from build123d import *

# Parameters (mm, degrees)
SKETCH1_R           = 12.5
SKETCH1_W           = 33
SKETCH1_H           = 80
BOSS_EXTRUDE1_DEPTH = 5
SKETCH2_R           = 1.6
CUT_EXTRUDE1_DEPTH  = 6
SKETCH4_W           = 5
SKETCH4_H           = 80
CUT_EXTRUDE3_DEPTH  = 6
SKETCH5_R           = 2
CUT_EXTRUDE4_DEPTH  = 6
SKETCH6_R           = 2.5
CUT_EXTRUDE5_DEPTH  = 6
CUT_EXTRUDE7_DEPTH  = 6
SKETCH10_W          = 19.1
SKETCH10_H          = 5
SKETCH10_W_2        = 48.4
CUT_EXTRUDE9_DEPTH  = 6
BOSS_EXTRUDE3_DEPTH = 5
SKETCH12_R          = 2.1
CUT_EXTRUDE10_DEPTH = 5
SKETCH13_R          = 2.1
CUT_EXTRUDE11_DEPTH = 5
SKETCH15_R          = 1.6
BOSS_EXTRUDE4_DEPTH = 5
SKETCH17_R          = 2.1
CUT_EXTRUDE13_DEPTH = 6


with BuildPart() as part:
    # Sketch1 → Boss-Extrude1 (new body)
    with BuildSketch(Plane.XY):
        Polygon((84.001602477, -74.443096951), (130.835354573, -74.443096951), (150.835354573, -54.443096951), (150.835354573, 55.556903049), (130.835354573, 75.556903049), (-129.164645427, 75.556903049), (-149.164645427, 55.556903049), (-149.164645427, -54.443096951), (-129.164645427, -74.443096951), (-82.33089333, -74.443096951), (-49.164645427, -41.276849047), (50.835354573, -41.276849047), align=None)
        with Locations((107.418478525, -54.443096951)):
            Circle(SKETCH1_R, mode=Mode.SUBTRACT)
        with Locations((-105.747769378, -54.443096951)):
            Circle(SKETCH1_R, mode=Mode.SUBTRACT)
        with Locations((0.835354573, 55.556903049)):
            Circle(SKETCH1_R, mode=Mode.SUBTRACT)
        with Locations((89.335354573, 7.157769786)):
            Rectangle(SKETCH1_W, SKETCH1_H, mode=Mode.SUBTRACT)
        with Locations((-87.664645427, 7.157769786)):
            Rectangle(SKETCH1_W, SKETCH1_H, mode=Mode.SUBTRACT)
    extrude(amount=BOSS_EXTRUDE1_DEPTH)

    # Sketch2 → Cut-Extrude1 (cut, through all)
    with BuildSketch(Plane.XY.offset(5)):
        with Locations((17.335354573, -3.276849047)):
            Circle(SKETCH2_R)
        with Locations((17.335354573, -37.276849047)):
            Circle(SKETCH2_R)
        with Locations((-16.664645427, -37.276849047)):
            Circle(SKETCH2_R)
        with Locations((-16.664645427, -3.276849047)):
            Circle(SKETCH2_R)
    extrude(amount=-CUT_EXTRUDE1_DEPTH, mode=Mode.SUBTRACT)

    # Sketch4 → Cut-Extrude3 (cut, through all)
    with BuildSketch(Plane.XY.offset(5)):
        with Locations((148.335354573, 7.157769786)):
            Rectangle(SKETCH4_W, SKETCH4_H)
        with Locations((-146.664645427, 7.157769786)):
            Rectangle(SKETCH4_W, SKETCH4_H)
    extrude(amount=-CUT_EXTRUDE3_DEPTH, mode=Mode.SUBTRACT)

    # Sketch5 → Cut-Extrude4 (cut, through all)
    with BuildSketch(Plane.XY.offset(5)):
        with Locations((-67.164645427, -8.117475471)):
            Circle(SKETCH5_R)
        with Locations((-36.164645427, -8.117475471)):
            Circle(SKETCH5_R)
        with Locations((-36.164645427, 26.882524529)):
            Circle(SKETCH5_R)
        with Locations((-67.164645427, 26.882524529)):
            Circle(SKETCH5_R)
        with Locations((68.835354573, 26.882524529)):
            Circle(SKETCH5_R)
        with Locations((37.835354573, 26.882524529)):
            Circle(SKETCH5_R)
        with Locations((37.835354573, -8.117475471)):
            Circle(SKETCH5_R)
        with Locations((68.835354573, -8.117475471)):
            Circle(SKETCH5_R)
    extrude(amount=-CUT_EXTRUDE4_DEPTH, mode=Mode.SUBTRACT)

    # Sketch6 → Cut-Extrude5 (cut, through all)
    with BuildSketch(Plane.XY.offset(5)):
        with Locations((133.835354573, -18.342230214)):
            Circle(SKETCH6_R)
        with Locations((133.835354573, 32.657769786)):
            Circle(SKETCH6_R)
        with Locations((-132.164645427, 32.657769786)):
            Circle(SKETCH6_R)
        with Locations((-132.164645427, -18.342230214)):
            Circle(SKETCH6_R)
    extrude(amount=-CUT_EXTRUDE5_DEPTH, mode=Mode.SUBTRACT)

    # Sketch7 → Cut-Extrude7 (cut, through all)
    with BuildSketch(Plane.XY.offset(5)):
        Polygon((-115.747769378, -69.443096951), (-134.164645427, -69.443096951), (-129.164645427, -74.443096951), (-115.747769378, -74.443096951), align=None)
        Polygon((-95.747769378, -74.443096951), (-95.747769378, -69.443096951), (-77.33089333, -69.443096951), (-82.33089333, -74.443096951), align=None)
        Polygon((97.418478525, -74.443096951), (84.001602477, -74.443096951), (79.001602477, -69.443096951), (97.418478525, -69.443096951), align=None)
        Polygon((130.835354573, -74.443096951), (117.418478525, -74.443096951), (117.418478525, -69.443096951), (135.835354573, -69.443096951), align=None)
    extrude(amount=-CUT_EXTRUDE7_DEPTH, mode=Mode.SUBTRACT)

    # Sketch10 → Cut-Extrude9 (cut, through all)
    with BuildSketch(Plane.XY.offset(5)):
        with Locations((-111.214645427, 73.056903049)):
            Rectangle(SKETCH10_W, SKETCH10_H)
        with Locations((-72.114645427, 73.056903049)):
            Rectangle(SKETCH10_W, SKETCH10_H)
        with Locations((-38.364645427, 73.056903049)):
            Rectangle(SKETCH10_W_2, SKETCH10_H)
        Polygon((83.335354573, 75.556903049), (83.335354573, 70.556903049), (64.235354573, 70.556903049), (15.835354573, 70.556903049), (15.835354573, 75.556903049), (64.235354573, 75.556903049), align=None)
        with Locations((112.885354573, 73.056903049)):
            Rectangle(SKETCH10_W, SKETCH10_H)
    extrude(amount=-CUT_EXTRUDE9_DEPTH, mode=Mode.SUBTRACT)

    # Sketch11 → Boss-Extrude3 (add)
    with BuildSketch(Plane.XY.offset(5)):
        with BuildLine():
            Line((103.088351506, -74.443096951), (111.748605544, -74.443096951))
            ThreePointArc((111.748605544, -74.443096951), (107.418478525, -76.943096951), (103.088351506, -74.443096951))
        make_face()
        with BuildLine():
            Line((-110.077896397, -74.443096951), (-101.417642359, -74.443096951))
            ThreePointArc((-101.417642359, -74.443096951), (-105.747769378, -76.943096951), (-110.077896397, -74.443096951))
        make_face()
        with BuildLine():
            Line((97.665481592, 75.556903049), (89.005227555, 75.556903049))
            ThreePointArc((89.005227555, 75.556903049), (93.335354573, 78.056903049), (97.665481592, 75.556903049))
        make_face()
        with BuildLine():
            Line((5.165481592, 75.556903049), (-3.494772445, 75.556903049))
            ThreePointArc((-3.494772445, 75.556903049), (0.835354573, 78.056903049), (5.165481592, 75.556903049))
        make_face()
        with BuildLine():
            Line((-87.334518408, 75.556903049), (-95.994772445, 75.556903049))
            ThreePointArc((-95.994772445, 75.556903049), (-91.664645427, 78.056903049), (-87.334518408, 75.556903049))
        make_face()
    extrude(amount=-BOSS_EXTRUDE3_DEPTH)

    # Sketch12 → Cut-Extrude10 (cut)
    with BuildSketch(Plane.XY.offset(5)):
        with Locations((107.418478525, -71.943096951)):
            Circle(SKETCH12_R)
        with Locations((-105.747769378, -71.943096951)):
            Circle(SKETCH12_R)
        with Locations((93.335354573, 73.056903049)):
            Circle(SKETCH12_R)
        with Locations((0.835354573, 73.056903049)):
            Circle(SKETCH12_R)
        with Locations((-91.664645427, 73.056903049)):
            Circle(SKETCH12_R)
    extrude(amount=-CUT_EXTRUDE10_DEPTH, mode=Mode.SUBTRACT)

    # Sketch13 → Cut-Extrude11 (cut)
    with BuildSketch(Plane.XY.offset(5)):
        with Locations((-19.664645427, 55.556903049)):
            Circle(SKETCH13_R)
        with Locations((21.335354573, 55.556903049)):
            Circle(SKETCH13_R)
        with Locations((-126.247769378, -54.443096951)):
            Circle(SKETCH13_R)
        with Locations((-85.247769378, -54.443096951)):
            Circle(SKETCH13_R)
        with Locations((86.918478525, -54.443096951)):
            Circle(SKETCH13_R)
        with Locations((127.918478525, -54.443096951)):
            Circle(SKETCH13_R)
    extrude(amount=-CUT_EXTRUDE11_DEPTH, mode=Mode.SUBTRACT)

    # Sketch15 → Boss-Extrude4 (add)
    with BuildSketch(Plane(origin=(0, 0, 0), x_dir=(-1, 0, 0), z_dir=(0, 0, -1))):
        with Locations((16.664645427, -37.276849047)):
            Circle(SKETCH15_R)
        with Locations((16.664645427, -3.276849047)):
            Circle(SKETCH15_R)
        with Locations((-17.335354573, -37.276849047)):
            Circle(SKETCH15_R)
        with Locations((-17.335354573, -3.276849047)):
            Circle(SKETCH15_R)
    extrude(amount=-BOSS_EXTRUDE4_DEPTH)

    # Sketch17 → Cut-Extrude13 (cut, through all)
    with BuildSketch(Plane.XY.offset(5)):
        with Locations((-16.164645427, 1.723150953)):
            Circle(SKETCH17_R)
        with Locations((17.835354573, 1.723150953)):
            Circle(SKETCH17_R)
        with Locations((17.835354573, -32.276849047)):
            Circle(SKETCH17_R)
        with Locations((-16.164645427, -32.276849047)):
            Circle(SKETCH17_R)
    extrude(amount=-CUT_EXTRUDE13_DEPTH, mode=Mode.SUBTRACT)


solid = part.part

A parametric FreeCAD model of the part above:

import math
import FreeCAD as App
import Part
import Sketcher
from FreeCAD import Vector
Q = App.Units.Quantity


def add_polygon(sketch, points):
    """Adds a closed chain of lines whose ends are joined by coincident constraints."""
    first, n = sketch.GeometryCount, len(points)
    for a, b in zip(points, points[1:] + points[:1]):
        sketch.addGeometry(Part.LineSegment(App.Vector(*a, 0), App.Vector(*b, 0)), False)
    for i in range(n):
        sketch.addConstraint(Sketcher.Constraint("Coincident", first + i, 2, first + (i + 1) % n, 1))

doc = App.newDocument("Part")
params = doc.addObject("Spreadsheet::Sheet", "Params")
for row, (alias, value) in enumerate([
    ("sketch1_diameter", "25 mm"),
    ("sketch1_width", "260 mm"),
    ("sketch1_width2", "100 mm"),
    ("sketch1_width3", "33 mm"),
    ("sketch1_height", "110 mm"),
    ("pad1_length", "5 mm"),
    ("sketch2_diameter", "3.2 mm"),
    ("sketch3_width", "5 mm"),
    ("sketch3_height", "80 mm"),
    ("sketch4_diameter", "4 mm"),
    ("sketch5_diameter", "5 mm"),
    ("sketch6_height", "5 mm"),
    ("sketch7_height", "5 mm"),
    ("sketch7_width", "19.1 mm"),
    ("sketch7_width2", "67.5 mm"),
    ("sketch8_radius", "5 mm"),
    ("pad2_length", "5 mm"),
    ("sketch9_diameter", "4.2 mm"),
    ("pocket7_length", "5 mm"),
    ("sketch10_diameter", "4.2 mm"),
    ("pocket8_length", "5 mm"),
    ("sketch11_diameter", "3.2 mm"),
    ("pad3_length", "5 mm"),
    ("sketch12_diameter", "4.2 mm"),
], start=1):
    params.set(f"A{row}", alias)
    params.set(f"B{row}", "=" + value)
    params.setAlias(f"B{row}", alias)

body = doc.addObject("PartDesign::Body", "Body")

sketch1 = body.newObject("Sketcher::SketchObject", "Sketch")
sketch1.AttachmentSupport = (doc.getObject("XY_Plane"), [""])
sketch1.MapMode = "FlatFace"
add_polygon(sketch1, [(84.001602, -74.443097), (130.835355, -74.443097), (150.835355, -54.443097), (150.835355, 55.556903), (130.835355, 75.556903), (-129.164645, 75.556903), (-149.164645, 55.556903), (-149.164645, -54.443097), (-129.164645, -74.443097), (-82.330893, -74.443097), (-49.164645, -41.276849), (50.835355, -41.276849)])
sketch1.addGeometry(Part.Circle(Vector(-105.747769, -54.443097, 0), Vector(0, 0, 1), 12.5), False)
sketch1.addGeometry(Part.Circle(Vector(107.418479, -54.443097, 0), Vector(0, 0, 1), 12.5), False)
add_polygon(sketch1, [(-71.164645, -32.84223), (-104.164645, -32.84223), (-104.164645, 47.15777), (-71.164645, 47.15777)])
sketch1.addGeometry(Part.Circle(Vector(0.835355, 55.556903, 0), Vector(0, 0, 1), 12.5), False)
add_polygon(sketch1, [(105.835355, -32.84223), (72.835355, -32.84223), (72.835355, 47.15777), (105.835355, 47.15777)])
sketch1.addConstraint(Sketcher.Constraint("Horizontal", 0))
sketch1.addConstraint(Sketcher.Constraint("Vertical", 2))
sketch1.addConstraint(Sketcher.Constraint("Horizontal", 4))
sketch1.addConstraint(Sketcher.Constraint("Vertical", 6))
sketch1.addConstraint(Sketcher.Constraint("Horizontal", 8))
sketch1.addConstraint(Sketcher.Constraint("Horizontal", 10))
sketch1.addConstraint(Sketcher.Constraint("Horizontal", 14))
sketch1.addConstraint(Sketcher.Constraint("Vertical", 15))
sketch1.addConstraint(Sketcher.Constraint("Horizontal", 16))
sketch1.addConstraint(Sketcher.Constraint("Vertical", 17))
sketch1.addConstraint(Sketcher.Constraint("Horizontal", 19))
sketch1.addConstraint(Sketcher.Constraint("Vertical", 20))
sketch1.addConstraint(Sketcher.Constraint("Horizontal", 21))
sketch1.addConstraint(Sketcher.Constraint("Vertical", 22))
sketch1.addConstraint(Sketcher.Constraint("Equal", 12, 13))
sketch1.addConstraint(Sketcher.Constraint("Equal", 13, 18))
sketch1.addConstraint(Sketcher.Constraint("Perpendicular", 1, 3))
sketch1.addConstraint(Sketcher.Constraint("Perpendicular", 3, 5))
sketch1.addConstraint(Sketcher.Constraint("Perpendicular", 5, 7))
sketch1.addConstraint(Sketcher.Constraint("Perpendicular", 7, 9))
sketch1.addConstraint(Sketcher.Constraint("Perpendicular", 9, 11))
sketch1.addConstraint(Sketcher.Constraint("Horizontal", 12, 3, 13, 3))
sketch1.addConstraint(Sketcher.Constraint("Horizontal", 13, 3, 1, 2))
sketch1.addConstraint(Sketcher.Constraint("Horizontal", 18, 3, 2, 2))
sketch1.addConstraint(Sketcher.Constraint("Horizontal", 2, 2, 5, 2))
sketch1.addConstraint(Sketcher.Constraint("Horizontal", 1, 2, 6, 2))
sketch1.addConstraint(Sketcher.Constraint("Horizontal", 0, 2, 7, 2))
sketch1.addConstraint(Sketcher.Constraint("Horizontal", 17, 2, 19, 2))
sketch1.addConstraint(Sketcher.Constraint("Horizontal", 16, 2, 20, 2))
sketch1.addConstraint(Sketcher.Constraint("Vertical", 0, 2, 3, 2))
sketch1.addConstraint(Sketcher.Constraint("Vertical", 4, 2, 7, 2))
sketch1.addConstraint(Sketcher.Constraint("Equal", 0, 8))
sketch1.addConstraint(Sketcher.Constraint("Equal", 16, 19))
sketch1.addConstraint(Sketcher.Constraint("Diameter", 12, Q("25 mm")))
sketch1.addConstraint(Sketcher.Constraint("DistanceX", 4, 2, 4, 1, Q("260 mm")))
sketch1.addConstraint(Sketcher.Constraint("DistanceX", 10, 1, 10, 2, Q("100 mm")))
sketch1.addConstraint(Sketcher.Constraint("DistanceX", 14, 2, 14, 1, Q("33 mm")))
sketch1.addConstraint(Sketcher.Constraint("DistanceY", 2, 1, 2, 2, Q("110 mm")))
sketch1.addConstraint(Sketcher.Constraint("DistanceY", 15, 1, 15, 2, Q("80 mm")))
sketch1.addConstraint(Sketcher.Constraint("DistanceY", 0, 2, 13, 3, Q("20 mm")))
sketch1.addConstraint(Sketcher.Constraint("DistanceX", 18, 3, 0, 2, Q("130 mm")))
sketch1.addConstraint(Sketcher.Constraint("DistanceX", 7, 2, 14, 2, Q("25 mm")))
sketch1.addConstraint(Sketcher.Constraint("DistanceX", 10, 2, 19, 2, Q("22 mm")))
sketch1.addConstraint(Sketcher.Constraint("DistanceX", 0, 1, 0, 2, Q("46.833752 mm")))
sketch1.addConstraint(Sketcher.Constraint("DistanceX", 12, 3, -1, 1, Q("105.747769 mm")))
sketch1.addConstraint(Sketcher.Constraint("DistanceX", -1, 1, 13, 3, Q("107.418479 mm")))
sketch1.addConstraint(Sketcher.Constraint("DistanceY", 9, 2, -1, 1, Q("41.276849 mm")))
sketch1.addConstraint(Sketcher.Constraint("DistanceY", 14, 2, -1, 1, Q("32.84223 mm")))
sketch1.addConstraint(Sketcher.Constraint("DistanceX", -1, 1, 18, 3, Q("0.835355 mm")))
sketch1.setExpression("Constraints[53]", "Params.sketch1_diameter")
sketch1.setExpression("Constraints[54]", "Params.sketch1_width")
sketch1.setExpression("Constraints[55]", "Params.sketch1_width2")
sketch1.setExpression("Constraints[56]", "Params.sketch1_width3")
sketch1.setExpression("Constraints[57]", "Params.sketch1_height")
pad1 = body.newObject("PartDesign::Pad", "Pad")
pad1.Profile = sketch1
pad1.setExpression("Length", "Params.pad1_length")

sketch2 = body.newObject("Sketcher::SketchObject", "Sketch001")
sketch2.AttachmentSupport = (doc.getObject("XY_Plane"), [""])
sketch2.MapMode = "FlatFace"
sketch2.AttachmentOffset = App.Placement(Vector(0, 0, 5), App.Rotation())
sketch2.addGeometry(Part.Circle(Vector(17.335355, -3.276849, 0), Vector(0, 0, 1), 1.6), False)
sketch2.addGeometry(Part.Circle(Vector(17.335355, -37.276849, 0), Vector(0, 0, 1), 1.6), False)
sketch2.addGeometry(Part.Circle(Vector(-16.664645, -37.276849, 0), Vector(0, 0, 1), 1.6), False)
sketch2.addGeometry(Part.Circle(Vector(-16.664645, -3.276849, 0), Vector(0, 0, 1), 1.6), False)
sketch2.addConstraint(Sketcher.Constraint("Equal", 0, 1))
sketch2.addConstraint(Sketcher.Constraint("Equal", 1, 2))
sketch2.addConstraint(Sketcher.Constraint("Equal", 2, 3))
sketch2.addConstraint(Sketcher.Constraint("Horizontal", 1, 3, 2, 3))
sketch2.addConstraint(Sketcher.Constraint("Horizontal", 0, 3, 3, 3))
sketch2.addConstraint(Sketcher.Constraint("Vertical", 0, 3, 1, 3))
sketch2.addConstraint(Sketcher.Constraint("Vertical", 2, 3, 3, 3))
sketch2.addConstraint(Sketcher.Constraint("Diameter", 0, Q("3.2 mm")))
sketch2.addConstraint(Sketcher.Constraint("DistanceY", 1, 3, 0, 3, Q("34 mm")))
sketch2.addConstraint(Sketcher.Constraint("DistanceX", 2, 3, 1, 3, Q("34 mm")))
sketch2.addConstraint(Sketcher.Constraint("DistanceY", 0, 3, -1, 1, Q("3.276849 mm")))
sketch2.addConstraint(Sketcher.Constraint("DistanceX", -1, 1, 0, 3, Q("17.335355 mm")))
sketch2.setExpression("Constraints[7]", "Params.sketch2_diameter")
pocket1 = body.newObject("PartDesign::Pocket", "Pocket")
pocket1.Profile = sketch2
pocket1.Type = "ThroughAll"

sketch3 = body.newObject("Sketcher::SketchObject", "Sketch002")
sketch3.AttachmentSupport = (doc.getObject("XY_Plane"), [""])
sketch3.MapMode = "FlatFace"
sketch3.AttachmentOffset = App.Placement(Vector(0, 0, 5), App.Rotation())
add_polygon(sketch3, [(145.835355, 47.15777), (145.835355, -32.84223), (150.835355, -32.84223), (150.835355, 47.15777)])
add_polygon(sketch3, [(-149.164645, 47.15777), (-149.164645, -32.84223), (-144.164645, -32.84223), (-144.164645, 47.15777)])
sketch3.addConstraint(Sketcher.Constraint("Vertical", 0))
sketch3.addConstraint(Sketcher.Constraint("Horizontal", 1))
sketch3.addConstraint(Sketcher.Constraint("Vertical", 2))
sketch3.addConstraint(Sketcher.Constraint("Horizontal", 3))
sketch3.addConstraint(Sketcher.Constraint("Vertical", 4))
sketch3.addConstraint(Sketcher.Constraint("Horizontal", 5))
sketch3.addConstraint(Sketcher.Constraint("Vertical", 6))
sketch3.addConstraint(Sketcher.Constraint("Horizontal", 7))
sketch3.addConstraint(Sketcher.Constraint("Horizontal", 1, 2, 4, 2))
sketch3.addConstraint(Sketcher.Constraint("Horizontal", 3, 2, 6, 2))
sketch3.addConstraint(Sketcher.Constraint("Equal", 3, 5))
sketch3.addConstraint(Sketcher.Constraint("DistanceX", 1, 1, 1, 2, Q("5 mm")))
sketch3.addConstraint(Sketcher.Constraint("DistanceY", 0, 2, 0, 1, Q("80 mm")))
sketch3.addConstraint(Sketcher.Constraint("DistanceX", 4, 2, 0, 2, Q("295 mm")))
sketch3.addConstraint(Sketcher.Constraint("DistanceY", 0, 2, -1, 1, Q("32.84223 mm")))
sketch3.addConstraint(Sketcher.Constraint("DistanceX", -1, 1, 0, 2, Q("145.835355 mm")))
sketch3.setExpression("Constraints[19]", "Params.sketch3_width")
sketch3.setExpression("Constraints[20]", "Params.sketch3_height")
pocket2 = body.newObject("PartDesign::Pocket", "Pocket001")
pocket2.Profile = sketch3
pocket2.Type = "ThroughAll"

sketch4 = body.newObject("Sketcher::SketchObject", "Sketch003")
sketch4.AttachmentSupport = (doc.getObject("XY_Plane"), [""])
sketch4.MapMode = "FlatFace"
sketch4.AttachmentOffset = App.Placement(Vector(0, 0, 5), App.Rotation())
sketch4.addGeometry(Part.Circle(Vector(-67.164645, -8.117475, 0), Vector(0, 0, 1), 2), False)
sketch4.addGeometry(Part.Circle(Vector(-36.164645, -8.117475, 0), Vector(0, 0, 1), 2), False)
sketch4.addGeometry(Part.Circle(Vector(-36.164645, 26.882525, 0), Vector(0, 0, 1), 2), False)
sketch4.addGeometry(Part.Circle(Vector(-67.164645, 26.882525, 0), Vector(0, 0, 1), 2), False)
sketch4.addGeometry(Part.Circle(Vector(68.835355, 26.882525, 0), Vector(0, 0, 1), 2), False)
sketch4.addGeometry(Part.Circle(Vector(37.835355, 26.882525, 0), Vector(0, 0, 1), 2), False)
sketch4.addGeometry(Part.Circle(Vector(37.835355, -8.117475, 0), Vector(0, 0, 1), 2), False)
sketch4.addGeometry(Part.Circle(Vector(68.835355, -8.117475, 0), Vector(0, 0, 1), 2), False)
sketch4.addConstraint(Sketcher.Constraint("Equal", 0, 1))
sketch4.addConstraint(Sketcher.Constraint("Equal", 1, 2))
sketch4.addConstraint(Sketcher.Constraint("Equal", 2, 3))
sketch4.addConstraint(Sketcher.Constraint("Equal", 3, 4))
sketch4.addConstraint(Sketcher.Constraint("Equal", 4, 5))
sketch4.addConstraint(Sketcher.Constraint("Equal", 5, 6))
sketch4.addConstraint(Sketcher.Constraint("Equal", 6, 7))
sketch4.addConstraint(Sketcher.Constraint("Horizontal", 0, 3, 1, 3))
sketch4.addConstraint(Sketcher.Constraint("Horizontal", 2, 3, 3, 3))
sketch4.addConstraint(Sketcher.Constraint("Horizontal", 3, 3, 4, 3))
sketch4.addConstraint(Sketcher.Constraint("Horizontal", 4, 3, 5, 3))
sketch4.addConstraint(Sketcher.Constraint("Horizontal", 1, 3, 6, 3))
sketch4.addConstraint(Sketcher.Constraint("Horizontal", 6, 3, 7, 3))
sketch4.addConstraint(Sketcher.Constraint("Vertical", 1, 3, 2, 3))
sketch4.addConstraint(Sketcher.Constraint("Vertical", 0, 3, 3, 3))
sketch4.addConstraint(Sketcher.Constraint("Vertical", 5, 3, 6, 3))
sketch4.addConstraint(Sketcher.Constraint("Vertical", 4, 3, 7, 3))
sketch4.addConstraint(Sketcher.Constraint("Diameter", 0, Q("4 mm")))
sketch4.addConstraint(Sketcher.Constraint("DistanceX", 0, 3, 1, 3, Q("31 mm")))
sketch4.addConstraint(Sketcher.Constraint("DistanceY", 1, 3, 2, 3, Q("35 mm")))
sketch4.addConstraint(Sketcher.Constraint("DistanceX", 2, 3, 4, 3, Q("105 mm")))
sketch4.addConstraint(Sketcher.Constraint("DistanceX", 5, 3, 4, 3, Q("31 mm")))
sketch4.addConstraint(Sketcher.Constraint("DistanceX", 0, 3, -1, 1, Q("67.164645 mm")))
sketch4.addConstraint(Sketcher.Constraint("DistanceY", 0, 3, -1, 1, Q("8.117475 mm")))
sketch4.setExpression("Constraints[17]", "Params.sketch4_diameter")
pocket3 = body.newObject("PartDesign::Pocket", "Pocket002")
pocket3.Profile = sketch4
pocket3.Type = "ThroughAll"

sketch5 = body.newObject("Sketcher::SketchObject", "Sketch004")
sketch5.AttachmentSupport = (doc.getObject("XY_Plane"), [""])
sketch5.MapMode = "FlatFace"
sketch5.AttachmentOffset = App.Placement(Vector(0, 0, 5), App.Rotation())
sketch5.addGeometry(Part.Circle(Vector(133.835355, -18.34223, 0), Vector(0, 0, 1), 2.5), False)
sketch5.addGeometry(Part.Circle(Vector(133.835355, 32.65777, 0), Vector(0, 0, 1), 2.5), False)
sketch5.addGeometry(Part.Circle(Vector(-132.164645, 32.65777, 0), Vector(0, 0, 1), 2.5), False)
sketch5.addGeometry(Part.Circle(Vector(-132.164645, -18.34223, 0), Vector(0, 0, 1), 2.5), False)
sketch5.addConstraint(Sketcher.Constraint("Equal", 0, 1))
sketch5.addConstraint(Sketcher.Constraint("Equal", 1, 2))
sketch5.addConstraint(Sketcher.Constraint("Equal", 2, 3))
sketch5.addConstraint(Sketcher.Constraint("Horizontal", 1, 3, 2, 3))
sketch5.addConstraint(Sketcher.Constraint("Horizontal", 0, 3, 3, 3))
sketch5.addConstraint(Sketcher.Constraint("Vertical", 0, 3, 1, 3))
sketch5.addConstraint(Sketcher.Constraint("Vertical", 2, 3, 3, 3))
sketch5.addConstraint(Sketcher.Constraint("Diameter", 0, Q("5 mm")))
sketch5.addConstraint(Sketcher.Constraint("DistanceY", 0, 3, 1, 3, Q("51 mm")))
sketch5.addConstraint(Sketcher.Constraint("DistanceX", 2, 3, 1, 3, Q("266 mm")))
sketch5.addConstraint(Sketcher.Constraint("DistanceY", 0, 3, -1, 1, Q("18.34223 mm")))
sketch5.addConstraint(Sketcher.Constraint("DistanceX", -1, 1, 0, 3, Q("133.835355 mm")))
sketch5.setExpression("Constraints[7]", "Params.sketch5_diameter")
pocket4 = body.newObject("PartDesign::Pocket", "Pocket003")
pocket4.Profile = sketch5
pocket4.Type = "ThroughAll"

sketch6 = body.newObject("Sketcher::SketchObject", "Sketch005")
sketch6.AttachmentSupport = (doc.getObject("XY_Plane"), [""])
sketch6.MapMode = "FlatFace"
sketch6.AttachmentOffset = App.Placement(Vector(0, 0, 5), App.Rotation())
add_polygon(sketch6, [(-115.747769, -69.443097), (-134.164645, -69.443097), (-129.164645, -74.443097), (-115.747769, -74.443097)])
add_polygon(sketch6, [(-95.747769, -69.443097), (-95.747769, -74.443097), (-82.330893, -74.443097), (-77.330893, -69.443097)])
add_polygon(sketch6, [(84.001602, -74.443097), (97.418479, -74.443097), (97.418479, -69.443097), (79.001602, -69.443097)])
add_polygon(sketch6, [(117.418479, -74.443097), (130.835355, -74.443097), (135.835355, -69.443097), (117.418479, -69.443097)])
sketch6.addConstraint(Sketcher.Constraint("Horizontal", 0))
sketch6.addConstraint(Sketcher.Constraint("Horizontal", 2))
sketch6.addConstraint(Sketcher.Constraint("Vertical", 3))
sketch6.addConstraint(Sketcher.Constraint("Vertical", 4))
sketch6.addConstraint(Sketcher.Constraint("Horizontal", 5))
sketch6.addConstraint(Sketcher.Constraint("Horizontal", 7))
sketch6.addConstraint(Sketcher.Constraint("Horizontal", 8))
sketch6.addConstraint(Sketcher.Constraint("Vertical", 9))
sketch6.addConstraint(Sketcher.Constraint("Horizontal", 10))
sketch6.addConstraint(Sketcher.Constraint("Horizontal", 12))
sketch6.addConstraint(Sketcher.Constraint("Horizontal", 14))
sketch6.addConstraint(Sketcher.Constraint("Vertical", 15))
sketch6.addConstraint(Sketcher.Constraint("Perpendicular", 1, 6))
sketch6.addConstraint(Sketcher.Constraint("Perpendicular", 6, 11))
sketch6.addConstraint(Sketcher.Constraint("Perpendicular", 11, 13))
sketch6.addConstraint(Sketcher.Constraint("Horizontal", 2, 2, 4, 2))
sketch6.addConstraint(Sketcher.Constraint("Horizontal", 3, 2, 6, 2))
sketch6.addConstraint(Sketcher.Constraint("Horizontal", 5, 2, 8, 2))
sketch6.addConstraint(Sketcher.Constraint("Horizontal", 7, 2, 9, 2))
sketch6.addConstraint(Sketcher.Constraint("Horizontal", 11, 2, 12, 2))
sketch6.addConstraint(Sketcher.Constraint("Horizontal", 10, 2, 13, 2))
sketch6.addConstraint(Sketcher.Constraint("Equal", 2, 5))
sketch6.addConstraint(Sketcher.Constraint("Equal", 0, 7))
sketch6.addConstraint(Sketcher.Constraint("Equal", 5, 8))
sketch6.addConstraint(Sketcher.Constraint("Equal", 8, 12))
sketch6.addConstraint(Sketcher.Constraint("DistanceY", 3, 1, 3, 2, Q("5 mm")))
sketch6.addConstraint(Sketcher.Constraint("DistanceX", 2, 2, 4, 2, Q("20 mm")))
sketch6.addConstraint(Sketcher.Constraint("DistanceX", 9, 2, 14, 2, Q("20 mm")))
sketch6.addConstraint(Sketcher.Constraint("DistanceX", 0, 2, 0, 1, Q("18.416876 mm")))
sketch6.addConstraint(Sketcher.Constraint("DistanceX", 2, 2, -1, 1, Q("115.747769 mm")))
sketch6.addConstraint(Sketcher.Constraint("DistanceX", -1, 1, 8, 2, Q("97.418479 mm")))
sketch6.addConstraint(Sketcher.Constraint("DistanceY", 0, 2, -1, 1, Q("69.443097 mm")))
sketch6.setExpression("Constraints[41]", "Params.sketch6_height")
pocket5 = body.newObject("PartDesign::Pocket", "Pocket004")
pocket5.Profile = sketch6
pocket5.Type = "ThroughAll"

sketch7 = body.newObject("Sketcher::SketchObject", "Sketch006")
sketch7.AttachmentSupport = (doc.getObject("XY_Plane"), [""])
sketch7.MapMode = "FlatFace"
sketch7.AttachmentOffset = App.Placement(Vector(0, 0, 5), App.Rotation())
add_polygon(sketch7, [(-120.764645, 75.556903), (-120.764645, 70.556903), (-101.664645, 70.556903), (-101.664645, 75.556903)])
add_polygon(sketch7, [(-81.664645, 75.556903), (-81.664645, 70.556903), (-14.164645, 70.556903), (-14.164645, 75.556903)])
add_polygon(sketch7, [(83.335355, 70.556903), (83.335355, 75.556903), (15.835355, 75.556903), (15.835355, 70.556903)])
add_polygon(sketch7, [(103.335355, 75.556903), (103.335355, 70.556903), (122.435355, 70.556903), (122.435355, 75.556903)])
sketch7.addConstraint(Sketcher.Constraint("Vertical", 0))
sketch7.addConstraint(Sketcher.Constraint("Horizontal", 1))
sketch7.addConstraint(Sketcher.Constraint("Vertical", 2))
sketch7.addConstraint(Sketcher.Constraint("Horizontal", 3))
sketch7.addConstraint(Sketcher.Constraint("Vertical", 4))
sketch7.addConstraint(Sketcher.Constraint("Horizontal", 5))
sketch7.addConstraint(Sketcher.Constraint("Vertical", 6))
sketch7.addConstraint(Sketcher.Constraint("Horizontal", 7))
sketch7.addConstraint(Sketcher.Constraint("Vertical", 8))
sketch7.addConstraint(Sketcher.Constraint("Horizontal", 9))
sketch7.addConstraint(Sketcher.Constraint("Vertical", 10))
sketch7.addConstraint(Sketcher.Constraint("Horizontal", 11))
sketch7.addConstraint(Sketcher.Constraint("Vertical", 12))
sketch7.addConstraint(Sketcher.Constraint("Horizontal", 13))
sketch7.addConstraint(Sketcher.Constraint("Vertical", 14))
sketch7.addConstraint(Sketcher.Constraint("Horizontal", 15))
sketch7.addConstraint(Sketcher.Constraint("Horizontal", 1, 2, 4, 2))
sketch7.addConstraint(Sketcher.Constraint("Horizontal", 3, 2, 6, 2))
sketch7.addConstraint(Sketcher.Constraint("Horizontal", 7, 2, 8, 2))
sketch7.addConstraint(Sketcher.Constraint("Horizontal", 5, 2, 10, 2))
sketch7.addConstraint(Sketcher.Constraint("Horizontal", 11, 2, 12, 2))
sketch7.addConstraint(Sketcher.Constraint("Horizontal", 9, 2, 14, 2))
sketch7.addConstraint(Sketcher.Constraint("Equal", 7, 9))
sketch7.addConstraint(Sketcher.Constraint("Equal", 3, 13))
sketch7.addConstraint(Sketcher.Constraint("DistanceY", 0, 2, 0, 1, Q("5 mm")))
sketch7.addConstraint(Sketcher.Constraint("DistanceX", 1, 1, 1, 2, Q("19.1 mm")))
sketch7.addConstraint(Sketcher.Constraint("DistanceX", 5, 1, 5, 2, Q("67.5 mm")))
sketch7.addConstraint(Sketcher.Constraint("DistanceX", 1, 2, 4, 2, Q("20 mm")))
sketch7.addConstraint(Sketcher.Constraint("DistanceX", 7, 2, 8, 2, Q("165 mm")))
sketch7.addConstraint(Sketcher.Constraint("DistanceX", 11, 2, 12, 2, Q("20 mm")))
sketch7.addConstraint(Sketcher.Constraint("DistanceX", 0, 2, -1, 1, Q("120.764645 mm")))
sketch7.addConstraint(Sketcher.Constraint("DistanceY", -1, 1, 0, 2, Q("70.556903 mm")))
sketch7.setExpression("Constraints[40]", "Params.sketch7_height")
sketch7.setExpression("Constraints[41]", "Params.sketch7_width")
sketch7.setExpression("Constraints[42]", "Params.sketch7_width2")
pocket6 = body.newObject("PartDesign::Pocket", "Pocket005")
pocket6.Profile = sketch7
pocket6.Type = "ThroughAll"

sketch8 = body.newObject("Sketcher::SketchObject", "Sketch007")
sketch8.AttachmentSupport = (doc.getObject("XY_Plane"), [""])
sketch8.MapMode = "FlatFace"
sketch8.AttachmentOffset = App.Placement(Vector(0, 0, 5), App.Rotation())
sketch8.addGeometry(Part.LineSegment(Vector(111.748606, -74.443097, 0), Vector(103.088352, -74.443097, 0)), False)
sketch8.addGeometry(Part.ArcOfCircle(Part.Circle(Vector(107.418479, -71.943097, 0), Vector(0, 0, 1), 5), math.radians(-150), math.radians(-30)), False)
sketch8.addGeometry(Part.LineSegment(Vector(-101.417642, -74.443097, 0), Vector(-110.077896, -74.443097, 0)), False)
sketch8.addGeometry(Part.ArcOfCircle(Part.Circle(Vector(-105.747769, -71.943097, 0), Vector(0, 0, 1), 5), math.radians(-150), math.radians(-30)), False)
sketch8.addGeometry(Part.LineSegment(Vector(89.005228, 75.556903, 0), Vector(97.665482, 75.556903, 0)), False)
sketch8.addGeometry(Part.ArcOfCircle(Part.Circle(Vector(93.335355, 73.056903, 0), Vector(0, 0, 1), 5), math.radians(30), math.radians(150)), False)
sketch8.addGeometry(Part.LineSegment(Vector(-3.494772, 75.556903, 0), Vector(5.165482, 75.556903, 0)), False)
sketch8.addGeometry(Part.ArcOfCircle(Part.Circle(Vector(0.835355, 73.056903, 0), Vector(0, 0, 1), 5), math.radians(30), math.radians(150)), False)
sketch8.addGeometry(Part.LineSegment(Vector(-95.994772, 75.556903, 0), Vector(-87.334518, 75.556903, 0)), False)
sketch8.addGeometry(Part.ArcOfCircle(Part.Circle(Vector(-91.664645, 73.056903, 0), Vector(0, 0, 1), 5), math.radians(30), math.radians(150)), False)
sketch8.addConstraint(Sketcher.Constraint("Coincident", 0, 1, 1, 2))
sketch8.addConstraint(Sketcher.Constraint("Coincident", 1, 1, 0, 2))
sketch8.addConstraint(Sketcher.Constraint("Coincident", 2, 1, 3, 2))
sketch8.addConstraint(Sketcher.Constraint("Coincident", 3, 1, 2, 2))
sketch8.addConstraint(Sketcher.Constraint("Coincident", 4, 1, 5, 2))
sketch8.addConstraint(Sketcher.Constraint("Coincident", 5, 1, 4, 2))
sketch8.addConstraint(Sketcher.Constraint("Coincident", 6, 1, 7, 2))
sketch8.addConstraint(Sketcher.Constraint("Coincident", 7, 1, 6, 2))
sketch8.addConstraint(Sketcher.Constraint("Coincident", 8, 1, 9, 2))
sketch8.addConstraint(Sketcher.Constraint("Coincident", 9, 1, 8, 2))
sketch8.addConstraint(Sketcher.Constraint("Horizontal", 0))
sketch8.addConstraint(Sketcher.Constraint("Horizontal", 2))
sketch8.addConstraint(Sketcher.Constraint("Horizontal", 4))
sketch8.addConstraint(Sketcher.Constraint("Horizontal", 6))
sketch8.addConstraint(Sketcher.Constraint("Horizontal", 8))
sketch8.addConstraint(Sketcher.Constraint("Equal", 1, 3))
sketch8.addConstraint(Sketcher.Constraint("Equal", 3, 5))
sketch8.addConstraint(Sketcher.Constraint("Equal", 5, 7))
sketch8.addConstraint(Sketcher.Constraint("Equal", 7, 9))
sketch8.addConstraint(Sketcher.Constraint("Horizontal", 1, 3, 3, 3))
sketch8.addConstraint(Sketcher.Constraint("Horizontal", 5, 3, 7, 3))
sketch8.addConstraint(Sketcher.Constraint("Horizontal", 7, 3, 9, 3))
sketch8.addConstraint(Sketcher.Constraint("Horizontal", 1, 1, 2, 1))
sketch8.addConstraint(Sketcher.Constraint("Horizontal", 5, 1, 6, 1))
sketch8.addConstraint(Sketcher.Constraint("Horizontal", 7, 1, 8, 1))
sketch8.addConstraint(Sketcher.Constraint("Equal", 2, 4))
sketch8.addConstraint(Sketcher.Constraint("Radius", 1, Q("5 mm")))
sketch8.addConstraint(Sketcher.Constraint("DistanceY", 1, 3, 5, 3, Q("145 mm")))
sketch8.addConstraint(Sketcher.Constraint("DistanceX", 9, 3, 5, 3, Q("185 mm")))
sketch8.addConstraint(Sketcher.Constraint("DistanceY", 1, 1, 4, 1, Q("150 mm")))
sketch8.addConstraint(Sketcher.Constraint("DistanceX", 7, 3, 5, 3, Q("92.5 mm")))
sketch8.addConstraint(Sketcher.Constraint("DistanceX", -1, 1, 1, 3, Q("107.418479 mm")))
sketch8.addConstraint(Sketcher.Constraint("DistanceX", 3, 3, -1, 1, Q("105.747769 mm")))
sketch8.addConstraint(Sketcher.Constraint("DistanceX", -1, 1, 5, 1, Q("97.665482 mm")))
sketch8.addConstraint(Sketcher.Constraint("DistanceY", 1, 3, -1, 1, Q("71.943097 mm")))
sketch8.setExpression("Constraints[26]", "Params.sketch8_radius")
pad2 = body.newObject("PartDesign::Pad", "Pad001")
pad2.Profile = sketch8
pad2.setExpression("Length", "Params.pad2_length")
pad2.Reversed = True

sketch9 = body.newObject("Sketcher::SketchObject", "Sketch008")
sketch9.AttachmentSupport = (doc.getObject("XY_Plane"), [""])
sketch9.MapMode = "FlatFace"
sketch9.AttachmentOffset = App.Placement(Vector(0, 0, 5), App.Rotation())
sketch9.addGeometry(Part.Circle(Vector(107.418479, -71.943097, 0), Vector(0, 0, 1), 2.1), False)
sketch9.addGeometry(Part.Circle(Vector(-105.747769, -71.943097, 0), Vector(0, 0, 1), 2.1), False)
sketch9.addGeometry(Part.Circle(Vector(93.335355, 73.056903, 0), Vector(0, 0, 1), 2.1), False)
sketch9.addGeometry(Part.Circle(Vector(0.835355, 73.056903, 0), Vector(0, 0, 1), 2.1), False)
sketch9.addGeometry(Part.Circle(Vector(-91.664645, 73.056903, 0), Vector(0, 0, 1), 2.1), False)
sketch9.addConstraint(Sketcher.Constraint("Equal", 0, 1))
sketch9.addConstraint(Sketcher.Constraint("Equal", 1, 2))
sketch9.addConstraint(Sketcher.Constraint("Equal", 2, 3))
sketch9.addConstraint(Sketcher.Constraint("Equal", 3, 4))
sketch9.addConstraint(Sketcher.Constraint("Horizontal", 0, 3, 1, 3))
sketch9.addConstraint(Sketcher.Constraint("Horizontal", 2, 3, 3, 3))
sketch9.addConstraint(Sketcher.Constraint("Horizontal", 3, 3, 4, 3))
sketch9.addConstraint(Sketcher.Constraint("Diameter", 0, Q("4.2 mm")))
sketch9.addConstraint(Sketcher.Constraint("DistanceY", 0, 3, 2, 3, Q("145 mm")))
sketch9.addConstraint(Sketcher.Constraint("DistanceX", 4, 3, 2, 3, Q("185 mm")))
sketch9.addConstraint(Sketcher.Constraint("DistanceX", 3, 3, 2, 3, Q("92.5 mm")))
sketch9.addConstraint(Sketcher.Constraint("DistanceX", -1, 1, 0, 3, Q("107.418479 mm")))
sketch9.addConstraint(Sketcher.Constraint("DistanceX", 1, 3, -1, 1, Q("105.747769 mm")))
sketch9.addConstraint(Sketcher.Constraint("DistanceY", 0, 3, -1, 1, Q("71.943097 mm")))
sketch9.addConstraint(Sketcher.Constraint("DistanceX", -1, 1, 2, 3, Q("93.335355 mm")))
sketch9.setExpression("Constraints[7]", "Params.sketch9_diameter")
pocket7 = body.newObject("PartDesign::Pocket", "Pocket006")
pocket7.Profile = sketch9
pocket7.setExpression("Length", "Params.pocket7_length")

sketch10 = body.newObject("Sketcher::SketchObject", "Sketch009")
sketch10.AttachmentSupport = (doc.getObject("XY_Plane"), [""])
sketch10.MapMode = "FlatFace"
sketch10.AttachmentOffset = App.Placement(Vector(0, 0, 5), App.Rotation())
sketch10.addGeometry(Part.Circle(Vector(-19.664645, 55.556903, 0), Vector(0, 0, 1), 2.1), False)
sketch10.addGeometry(Part.Circle(Vector(21.335355, 55.556903, 0), Vector(0, 0, 1), 2.1), False)
sketch10.addGeometry(Part.Circle(Vector(-126.247769, -54.443097, 0), Vector(0, 0, 1), 2.1), False)
sketch10.addGeometry(Part.Circle(Vector(-85.247769, -54.443097, 0), Vector(0, 0, 1), 2.1), False)
sketch10.addGeometry(Part.Circle(Vector(86.918479, -54.443097, 0), Vector(0, 0, 1), 2.1), False)
sketch10.addGeometry(Part.Circle(Vector(127.918479, -54.443097, 0), Vector(0, 0, 1), 2.1), False)
sketch10.addConstraint(Sketcher.Constraint("Equal", 0, 1))
sketch10.addConstraint(Sketcher.Constraint("Equal", 1, 2))
sketch10.addConstraint(Sketcher.Constraint("Equal", 2, 3))
sketch10.addConstraint(Sketcher.Constraint("Equal", 3, 4))
sketch10.addConstraint(Sketcher.Constraint("Equal", 4, 5))
sketch10.addConstraint(Sketcher.Constraint("Horizontal", 0, 3, 1, 3))
sketch10.addConstraint(Sketcher.Constraint("Horizontal", 2, 3, 3, 3))
sketch10.addConstraint(Sketcher.Constraint("Horizontal", 3, 3, 4, 3))
sketch10.addConstraint(Sketcher.Constraint("Horizontal", 4, 3, 5, 3))
sketch10.addConstraint(Sketcher.Constraint("Diameter", 0, Q("4.2 mm")))
sketch10.addConstraint(Sketcher.Constraint("DistanceX", 0, 3, 1, 3, Q("41 mm")))
sketch10.addConstraint(Sketcher.Constraint("DistanceY", 2, 3, 0, 3, Q("110 mm")))
sketch10.addConstraint(Sketcher.Constraint("DistanceX", 2, 3, 3, 3, Q("41 mm")))
sketch10.addConstraint(Sketcher.Constraint("DistanceX", 4, 3, 5, 3, Q("41 mm")))
sketch10.addConstraint(Sketcher.Constraint("DistanceX", 2, 3, -1, 1, Q("126.247769 mm")))
sketch10.addConstraint(Sketcher.Constraint("DistanceX", -1, 1, 4, 3, Q("86.918479 mm")))
sketch10.addConstraint(Sketcher.Constraint("DistanceX", 0, 3, -1, 1, Q("19.664645 mm")))
sketch10.addConstraint(Sketcher.Constraint("DistanceY", -1, 1, 0, 3, Q("55.556903 mm")))
sketch10.setExpression("Constraints[9]", "Params.sketch10_diameter")
pocket8 = body.newObject("PartDesign::Pocket", "Pocket007")
pocket8.Profile = sketch10
pocket8.setExpression("Length", "Params.pocket8_length")

sketch11 = body.newObject("Sketcher::SketchObject", "Sketch010")
sketch11.AttachmentSupport = (doc.getObject("XY_Plane"), [""])
sketch11.MapMode = "FlatFace"
sketch11.addGeometry(Part.Circle(Vector(-16.664645, -37.276849, 0), Vector(0, 0, 1), 1.6), False)
sketch11.addGeometry(Part.Circle(Vector(-16.664645, -3.276849, 0), Vector(0, 0, 1), 1.6), False)
sketch11.addGeometry(Part.Circle(Vector(17.335355, -37.276849, 0), Vector(0, 0, 1), 1.6), False)
sketch11.addGeometry(Part.Circle(Vector(17.335355, -3.276849, 0), Vector(0, 0, 1), 1.6), False)
sketch11.addConstraint(Sketcher.Constraint("Equal", 0, 1))
sketch11.addConstraint(Sketcher.Constraint("Equal", 1, 2))
sketch11.addConstraint(Sketcher.Constraint("Equal", 2, 3))
sketch11.addConstraint(Sketcher.Constraint("Horizontal", 0, 3, 2, 3))
sketch11.addConstraint(Sketcher.Constraint("Horizontal", 1, 3, 3, 3))
sketch11.addConstraint(Sketcher.Constraint("Vertical", 0, 3, 1, 3))
sketch11.addConstraint(Sketcher.Constraint("Vertical", 2, 3, 3, 3))
sketch11.addConstraint(Sketcher.Constraint("Diameter", 0, Q("3.2 mm")))
sketch11.addConstraint(Sketcher.Constraint("DistanceY", 0, 3, 1, 3, Q("34 mm")))
sketch11.addConstraint(Sketcher.Constraint("DistanceX", 0, 3, 2, 3, Q("34 mm")))
sketch11.addConstraint(Sketcher.Constraint("DistanceY", 0, 3, -1, 1, Q("37.276849 mm")))
sketch11.addConstraint(Sketcher.Constraint("DistanceX", 0, 3, -1, 1, Q("16.664645 mm")))
sketch11.setExpression("Constraints[7]", "Params.sketch11_diameter")
pad3 = body.newObject("PartDesign::Pad", "Pad002")
pad3.Profile = sketch11
pad3.setExpression("Length", "Params.pad3_length")

sketch12 = body.newObject("Sketcher::SketchObject", "Sketch011")
sketch12.AttachmentSupport = (doc.getObject("XY_Plane"), [""])
sketch12.MapMode = "FlatFace"
sketch12.AttachmentOffset = App.Placement(Vector(0, 0, 5), App.Rotation())
sketch12.addGeometry(Part.Circle(Vector(-16.164645, 1.723151, 0), Vector(0, 0, 1), 2.1), False)
sketch12.addGeometry(Part.Circle(Vector(17.835355, 1.723151, 0), Vector(0, 0, 1), 2.1), False)
sketch12.addGeometry(Part.Circle(Vector(17.835355, -32.276849, 0), Vector(0, 0, 1), 2.1), False)
sketch12.addGeometry(Part.Circle(Vector(-16.164645, -32.276849, 0), Vector(0, 0, 1), 2.1), False)
sketch12.addConstraint(Sketcher.Constraint("Equal", 0, 1))
sketch12.addConstraint(Sketcher.Constraint("Equal", 1, 2))
sketch12.addConstraint(Sketcher.Constraint("Equal", 2, 3))
sketch12.addConstraint(Sketcher.Constraint("Horizontal", 0, 3, 1, 3))
sketch12.addConstraint(Sketcher.Constraint("Horizontal", 2, 3, 3, 3))
sketch12.addConstraint(Sketcher.Constraint("Vertical", 1, 3, 2, 3))
sketch12.addConstraint(Sketcher.Constraint("Vertical", 0, 3, 3, 3))
sketch12.addConstraint(Sketcher.Constraint("Diameter", 0, Q("4.2 mm")))
sketch12.addConstraint(Sketcher.Constraint("DistanceX", 0, 3, 1, 3, Q("34 mm")))
sketch12.addConstraint(Sketcher.Constraint("DistanceY", 2, 3, 1, 3, Q("34 mm")))
sketch12.addConstraint(Sketcher.Constraint("DistanceY", -1, 1, 0, 3, Q("1.723151 mm")))
sketch12.addConstraint(Sketcher.Constraint("DistanceX", 0, 3, -1, 1, Q("16.164645 mm")))
sketch12.setExpression("Constraints[7]", "Params.sketch12_diameter")
pocket9 = body.newObject("PartDesign::Pocket", "Pocket008")
pocket9.Profile = sketch12
pocket9.Type = "ThroughAll"

doc.recompute()
